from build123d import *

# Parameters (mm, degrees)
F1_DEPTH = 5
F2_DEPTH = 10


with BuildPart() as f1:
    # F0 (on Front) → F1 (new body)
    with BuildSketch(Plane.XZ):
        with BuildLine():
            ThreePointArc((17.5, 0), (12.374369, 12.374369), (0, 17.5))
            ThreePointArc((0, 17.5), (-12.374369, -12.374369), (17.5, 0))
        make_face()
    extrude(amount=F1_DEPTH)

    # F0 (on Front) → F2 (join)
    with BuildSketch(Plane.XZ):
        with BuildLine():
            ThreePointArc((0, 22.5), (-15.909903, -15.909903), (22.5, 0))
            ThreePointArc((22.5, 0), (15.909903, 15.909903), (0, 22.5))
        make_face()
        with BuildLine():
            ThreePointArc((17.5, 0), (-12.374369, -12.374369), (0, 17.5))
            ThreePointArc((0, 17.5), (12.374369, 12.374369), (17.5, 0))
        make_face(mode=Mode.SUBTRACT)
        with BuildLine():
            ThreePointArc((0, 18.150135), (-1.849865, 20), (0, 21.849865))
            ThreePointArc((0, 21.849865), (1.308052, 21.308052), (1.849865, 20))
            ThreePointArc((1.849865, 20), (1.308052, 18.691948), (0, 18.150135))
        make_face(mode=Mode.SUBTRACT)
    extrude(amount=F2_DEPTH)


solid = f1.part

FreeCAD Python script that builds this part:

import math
import FreeCAD as App
import Part
import Sketcher
from FreeCAD import Vector

doc = App.newDocument("Part")
params = doc.addObject("Spreadsheet::Sheet", "Params")
for row, (alias, value) in enumerate([
    ("sketch1_radius", "17.499999 mm"),
    ("pad1_length", "5 mm"),
    ("sketch2_radius", "22.5 mm"),
    ("sketch2_radius2", "17.499999 mm"),
    ("pad2_length", "10 mm"),
], start=1):
    params.set(f"A{row}", alias)
    params.set(f"B{row}", "=" + value)
    params.setAlias(f"B{row}", alias)

body = doc.addObject("PartDesign::Body", "Body")

sketch1 = body.newObject("Sketcher::SketchObject", "Sketch")
sketch1.AttachmentSupport = (doc.getObject("XZ_Plane"), [""])
sketch1.MapMode = "FlatFace"
sketch1.addGeometry([
    Part.ArcOfCircle(Part.Circle(Vector(0, 0, 0), Vector(0, 0, 1), 17), math.radians(0), math.radians(90)),
    Part.ArcOfCircle(Part.Circle(Vector(0, 0, 0), Vector(0, 0, 1), 18), math.radians(90), math.radians(360)),
], False)
sketch1.addConstraint([
    Sketcher.Constraint("Tangent", 0, 1, 1, 2),
    Sketcher.Constraint("Coincident", 1, 1, 0, 2),
    Sketcher.Constraint("Coincident", 0, 3, -1, 1),
    Sketcher.Constraint("PointOnObject", 0, 1, -1),
    Sketcher.Constraint("PointOnObject", 1, 1, -2),
    Sketcher.Constraint("Radius", 0, 17.499999),
])
sketch1.setExpression("Constraints[5]", "Params.sketch1_radius")
pad1 = body.newObject("PartDesign::Pad", "Pad")
pad1.Profile = sketch1
pad1.setExpression("Length", "Params.pad1_length")

sketch2 = body.newObject("Sketcher::SketchObject", "Sketch001")
sketch2.AttachmentSupport = (doc.getObject("XZ_Plane"), [""])
sketch2.MapMode = "FlatFace"
sketch2.addGeometry([
    Part.ArcOfCircle(Part.Circle(Vector(0, 0, 0), Vector(0, 0, 1), 22.5), math.radians(90), math.radians(360)),
    Part.ArcOfCircle(Part.Circle(Vector(0, 0, 0), Vector(0, 0, 1), 22.5), math.radians(0), math.radians(90)),
    Part.ArcOfCircle(Part.Circle(Vector(0, 0, 0), Vector(0, 0, 1), 17.5), math.radians(0), math.radians(90)),
    Part.ArcOfCircle(Part.Circle(Vector(0, 0, 0), Vector(0, 0, 1), 17.5), math.radians(90), math.radians(360)),
    Part.ArcOfCircle(Part.Circle(Vector(0, 20, 0), Vector(0, 0, 1), 1.8), math.radians(-90), math.radians(0)),
    Part.ArcOfCircle(Part.Circle(Vector(0, 20, 0), Vector(0, 0, 1), 1.8), math.radians(90), math.radians(270)),
    Part.ArcOfCircle(Part.Circle(Vector(0, 20, 0), Vector(0, 0, 1), 1.8), math.radians(0), math.radians(90)),
], False)
sketch2.addConstraint([
    Sketcher.Constraint("Tangent", 0, 1, 1, 2),
    Sketcher.Constraint("Coincident", 1, 1, 0, 2),
    Sketcher.Constraint("Tangent", 2, 1, 3, 2),
    Sketcher.Constraint("Coincident", 3, 1, 2, 2),
    Sketcher.Constraint("Tangent", 4, 1, 5, 2),
    Sketcher.Constraint("Tangent", 5, 1, 6, 2),
    Sketcher.Constraint("Tangent", 6, 1, 4, 2),
    Sketcher.Constraint("Coincident", 0, 3, -1, 1),
    Sketcher.Constraint("Coincident", 2, 3, -1, 1),
    Sketcher.Constraint("PointOnObject", 4, 3, -2),
    Sketcher.Constraint("PointOnObject", 0, 1, -2),
    Sketcher.Constraint("PointOnObject", 1, 1, -1),
    Sketcher.Constraint("PointOnObject", 2, 1, -1),
    Sketcher.Constraint("PointOnObject", 3, 1, -2),
    Sketcher.Constraint("PointOnObject", 4, 1, -2),
    Sketcher.Constraint("PointOnObject", 5, 1, -2),
    Sketcher.Constraint("Horizontal", 5, 3, 6, 1),
    Sketcher.Constraint("Radius", 0, 22.5),
    Sketcher.Constraint("Radius", 2, 17.499999),
    Sketcher.Constraint("DistanceY", -1, 1, 4, 3, 20.0),
    Sketcher.Constraint("Radius", 4, 1.849865),
])
sketch2.setExpression("Constraints[17]", "Params.sketch2_radius")
sketch2.setExpression("Constraints[18]", "Params.sketch2_radius2")
pad2 = body.newObject("PartDesign::Pad", "Pad001")
pad2.Profile = sketch2
pad2.setExpression("Length", "Params.pad2_length")

doc.recompute()
